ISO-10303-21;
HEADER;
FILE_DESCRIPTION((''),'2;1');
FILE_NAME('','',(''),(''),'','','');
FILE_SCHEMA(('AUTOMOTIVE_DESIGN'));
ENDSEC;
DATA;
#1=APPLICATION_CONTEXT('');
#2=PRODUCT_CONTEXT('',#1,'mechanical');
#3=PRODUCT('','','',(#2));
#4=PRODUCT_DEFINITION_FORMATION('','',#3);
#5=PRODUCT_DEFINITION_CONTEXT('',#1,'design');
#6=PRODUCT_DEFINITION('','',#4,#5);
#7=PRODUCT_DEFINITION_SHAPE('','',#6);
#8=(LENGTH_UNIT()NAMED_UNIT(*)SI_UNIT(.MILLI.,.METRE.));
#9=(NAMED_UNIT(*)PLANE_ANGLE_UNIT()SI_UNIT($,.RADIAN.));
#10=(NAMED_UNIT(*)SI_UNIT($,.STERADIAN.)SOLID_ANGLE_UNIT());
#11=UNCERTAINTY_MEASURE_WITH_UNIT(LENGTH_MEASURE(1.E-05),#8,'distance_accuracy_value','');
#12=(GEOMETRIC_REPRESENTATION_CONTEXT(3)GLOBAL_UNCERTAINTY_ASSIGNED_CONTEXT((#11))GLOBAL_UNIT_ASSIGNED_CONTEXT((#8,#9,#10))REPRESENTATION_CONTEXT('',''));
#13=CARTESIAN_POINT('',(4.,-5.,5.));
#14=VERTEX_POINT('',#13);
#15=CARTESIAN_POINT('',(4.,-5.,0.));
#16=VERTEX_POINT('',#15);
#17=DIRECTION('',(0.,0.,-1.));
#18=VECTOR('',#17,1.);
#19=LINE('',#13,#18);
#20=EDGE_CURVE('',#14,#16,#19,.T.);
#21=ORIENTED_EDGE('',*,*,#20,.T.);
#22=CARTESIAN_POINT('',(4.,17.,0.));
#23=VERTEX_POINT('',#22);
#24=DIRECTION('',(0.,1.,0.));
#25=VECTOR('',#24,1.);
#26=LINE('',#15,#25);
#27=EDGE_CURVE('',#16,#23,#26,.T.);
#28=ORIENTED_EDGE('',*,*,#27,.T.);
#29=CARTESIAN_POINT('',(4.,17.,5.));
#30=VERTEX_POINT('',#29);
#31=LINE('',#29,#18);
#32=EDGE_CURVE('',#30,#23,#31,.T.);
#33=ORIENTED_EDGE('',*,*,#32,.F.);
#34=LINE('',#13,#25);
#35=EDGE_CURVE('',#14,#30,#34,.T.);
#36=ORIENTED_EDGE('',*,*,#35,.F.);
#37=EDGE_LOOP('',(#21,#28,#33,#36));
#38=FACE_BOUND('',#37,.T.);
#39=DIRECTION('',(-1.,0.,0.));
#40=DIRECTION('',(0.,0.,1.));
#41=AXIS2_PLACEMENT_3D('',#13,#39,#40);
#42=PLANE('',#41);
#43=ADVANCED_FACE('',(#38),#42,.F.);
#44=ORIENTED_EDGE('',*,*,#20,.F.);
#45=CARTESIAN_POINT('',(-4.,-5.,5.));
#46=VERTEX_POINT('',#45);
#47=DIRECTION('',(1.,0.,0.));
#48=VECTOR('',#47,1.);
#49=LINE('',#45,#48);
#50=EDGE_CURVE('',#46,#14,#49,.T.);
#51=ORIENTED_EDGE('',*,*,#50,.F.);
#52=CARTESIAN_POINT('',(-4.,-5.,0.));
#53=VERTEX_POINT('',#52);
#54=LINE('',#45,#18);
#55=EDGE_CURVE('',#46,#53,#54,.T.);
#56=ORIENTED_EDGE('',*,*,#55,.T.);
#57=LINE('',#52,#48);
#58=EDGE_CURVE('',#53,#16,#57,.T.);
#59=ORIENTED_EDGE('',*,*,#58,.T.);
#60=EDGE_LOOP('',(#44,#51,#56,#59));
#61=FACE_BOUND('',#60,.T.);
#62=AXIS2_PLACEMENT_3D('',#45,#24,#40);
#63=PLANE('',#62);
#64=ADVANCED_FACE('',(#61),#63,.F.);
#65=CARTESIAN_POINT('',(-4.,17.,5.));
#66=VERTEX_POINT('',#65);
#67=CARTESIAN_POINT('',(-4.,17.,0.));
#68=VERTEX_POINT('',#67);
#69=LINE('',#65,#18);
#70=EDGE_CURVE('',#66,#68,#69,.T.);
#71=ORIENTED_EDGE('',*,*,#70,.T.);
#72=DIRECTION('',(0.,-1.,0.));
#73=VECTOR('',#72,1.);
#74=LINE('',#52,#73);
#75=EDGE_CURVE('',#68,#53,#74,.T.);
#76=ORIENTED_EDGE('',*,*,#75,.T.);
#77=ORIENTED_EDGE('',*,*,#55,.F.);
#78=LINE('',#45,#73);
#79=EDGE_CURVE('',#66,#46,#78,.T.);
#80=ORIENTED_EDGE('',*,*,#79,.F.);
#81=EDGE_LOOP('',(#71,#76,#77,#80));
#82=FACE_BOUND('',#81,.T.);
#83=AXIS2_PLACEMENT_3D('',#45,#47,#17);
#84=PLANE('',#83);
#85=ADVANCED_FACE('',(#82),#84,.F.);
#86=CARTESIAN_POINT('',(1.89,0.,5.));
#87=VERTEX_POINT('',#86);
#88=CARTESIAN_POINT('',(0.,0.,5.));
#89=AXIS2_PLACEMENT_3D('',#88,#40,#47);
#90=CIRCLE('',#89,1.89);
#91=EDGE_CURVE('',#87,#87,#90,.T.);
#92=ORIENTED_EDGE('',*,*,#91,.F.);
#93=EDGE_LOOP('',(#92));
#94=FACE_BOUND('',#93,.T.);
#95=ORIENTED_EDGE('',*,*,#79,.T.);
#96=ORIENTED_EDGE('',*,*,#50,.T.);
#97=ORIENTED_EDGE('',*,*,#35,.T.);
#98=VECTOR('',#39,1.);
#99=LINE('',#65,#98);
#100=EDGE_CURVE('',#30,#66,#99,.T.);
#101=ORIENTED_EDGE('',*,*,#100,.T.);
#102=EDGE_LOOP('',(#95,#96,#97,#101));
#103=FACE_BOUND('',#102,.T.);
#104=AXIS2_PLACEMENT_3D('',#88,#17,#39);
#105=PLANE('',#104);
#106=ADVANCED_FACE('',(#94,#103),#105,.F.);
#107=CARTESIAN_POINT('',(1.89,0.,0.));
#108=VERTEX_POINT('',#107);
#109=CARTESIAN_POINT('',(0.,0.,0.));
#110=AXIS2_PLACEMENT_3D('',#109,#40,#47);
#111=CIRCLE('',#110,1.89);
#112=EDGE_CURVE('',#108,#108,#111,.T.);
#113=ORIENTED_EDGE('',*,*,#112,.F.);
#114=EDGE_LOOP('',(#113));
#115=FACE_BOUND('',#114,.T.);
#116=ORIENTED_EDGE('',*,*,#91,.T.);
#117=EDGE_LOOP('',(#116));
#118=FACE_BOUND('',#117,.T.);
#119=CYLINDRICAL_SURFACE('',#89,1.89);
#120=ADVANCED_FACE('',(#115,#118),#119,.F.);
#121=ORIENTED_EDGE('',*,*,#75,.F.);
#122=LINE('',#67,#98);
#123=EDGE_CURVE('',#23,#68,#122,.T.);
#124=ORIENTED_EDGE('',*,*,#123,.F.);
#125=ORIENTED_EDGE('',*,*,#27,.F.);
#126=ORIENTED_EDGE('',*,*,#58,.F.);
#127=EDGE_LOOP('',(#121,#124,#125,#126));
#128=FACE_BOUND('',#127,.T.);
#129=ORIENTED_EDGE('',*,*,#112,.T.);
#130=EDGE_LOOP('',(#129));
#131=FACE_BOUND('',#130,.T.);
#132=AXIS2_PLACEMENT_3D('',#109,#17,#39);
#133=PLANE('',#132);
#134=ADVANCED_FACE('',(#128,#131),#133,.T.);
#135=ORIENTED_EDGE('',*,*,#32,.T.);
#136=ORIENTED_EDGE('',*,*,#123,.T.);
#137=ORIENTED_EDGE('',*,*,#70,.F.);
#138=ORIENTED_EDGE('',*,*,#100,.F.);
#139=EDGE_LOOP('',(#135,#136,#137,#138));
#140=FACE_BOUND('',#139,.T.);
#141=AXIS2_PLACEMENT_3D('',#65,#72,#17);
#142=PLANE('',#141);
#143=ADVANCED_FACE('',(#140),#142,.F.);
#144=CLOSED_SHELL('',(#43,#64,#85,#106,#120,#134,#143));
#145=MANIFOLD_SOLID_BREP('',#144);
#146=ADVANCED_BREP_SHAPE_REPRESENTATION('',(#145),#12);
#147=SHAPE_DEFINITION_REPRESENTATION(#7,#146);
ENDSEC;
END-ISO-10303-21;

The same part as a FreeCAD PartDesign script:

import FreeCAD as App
import Part
import Sketcher

V = App.Vector
Q = App.Units.Quantity


def add_polygon(sketch, points):
    """Adds a closed chain of lines whose ends are joined by coincident constraints."""
    first, n = sketch.GeometryCount, len(points)
    for a, b in zip(points, points[1:] + points[:1]):
        sketch.addGeometry(Part.LineSegment(App.Vector(*a, 0), App.Vector(*b, 0)), False)
    for i in range(n):
        sketch.addConstraint(Sketcher.Constraint("Coincident", first + i, 2, first + (i + 1) % n, 1))

doc = App.newDocument("Part")
body = doc.addObject("PartDesign::Body", "Body")

# Sketch on XY plane
sketch1 = body.newObject("Sketcher::SketchObject", "Sketch")
sketch1.AttachmentSupport = (doc.getObject("XY_Plane"), [""])
sketch1.MapMode = "FlatFace"
add_polygon(sketch1, [(-4, 17), (-4, -5), (4, -5), (4, 17)])  # lines 0-3
sketch1.addConstraint([
    Sketcher.Constraint("Vertical", 0),
    Sketcher.Constraint("Horizontal", 1),
    Sketcher.Constraint("Vertical", 2),
    Sketcher.Constraint("Horizontal", 3),
    Sketcher.Constraint("DistanceX", 1, 1, 1, 2, Q("8 mm")),
    Sketcher.Constraint("DistanceY", 0, 2, 0, 1, Q("22 mm")),
    Sketcher.Constraint("DistanceX", 0, 2, -1, 1, Q("4 mm")),
    Sketcher.Constraint("DistanceY", 0, 2, -1, 1, Q("5 mm")),
])
pad1 = body.newObject("PartDesign::Pad", "Pad")
pad1.Profile = sketch1
pad1.Length = 5

# Sketch on XY plane
sketch2 = body.newObject("Sketcher::SketchObject", "Sketch001")
sketch2.AttachmentSupport = (doc.getObject("XY_Plane"), [""])
sketch2.MapMode = "FlatFace"
sketch2.AttachmentOffset = App.Placement(V(0, 0, 5), App.Rotation())
sketch2.addGeometry(Part.Circle(V(0, 0, 0), V(0, 0, 1), 1.9), False)
sketch2.addConstraint([
    Sketcher.Constraint("Coincident", 0, 3, -1, 1),
    Sketcher.Constraint("Diameter", 0, Q("3.78 mm")),
])
doc.recompute()
hole = body.newObject("PartDesign::Hole", "Hole")
hole.Profile = sketch2
hole.ThreadType = "None"
hole.Diameter = 3.78
hole.DepthType = "ThroughAll"

doc.recompute()
